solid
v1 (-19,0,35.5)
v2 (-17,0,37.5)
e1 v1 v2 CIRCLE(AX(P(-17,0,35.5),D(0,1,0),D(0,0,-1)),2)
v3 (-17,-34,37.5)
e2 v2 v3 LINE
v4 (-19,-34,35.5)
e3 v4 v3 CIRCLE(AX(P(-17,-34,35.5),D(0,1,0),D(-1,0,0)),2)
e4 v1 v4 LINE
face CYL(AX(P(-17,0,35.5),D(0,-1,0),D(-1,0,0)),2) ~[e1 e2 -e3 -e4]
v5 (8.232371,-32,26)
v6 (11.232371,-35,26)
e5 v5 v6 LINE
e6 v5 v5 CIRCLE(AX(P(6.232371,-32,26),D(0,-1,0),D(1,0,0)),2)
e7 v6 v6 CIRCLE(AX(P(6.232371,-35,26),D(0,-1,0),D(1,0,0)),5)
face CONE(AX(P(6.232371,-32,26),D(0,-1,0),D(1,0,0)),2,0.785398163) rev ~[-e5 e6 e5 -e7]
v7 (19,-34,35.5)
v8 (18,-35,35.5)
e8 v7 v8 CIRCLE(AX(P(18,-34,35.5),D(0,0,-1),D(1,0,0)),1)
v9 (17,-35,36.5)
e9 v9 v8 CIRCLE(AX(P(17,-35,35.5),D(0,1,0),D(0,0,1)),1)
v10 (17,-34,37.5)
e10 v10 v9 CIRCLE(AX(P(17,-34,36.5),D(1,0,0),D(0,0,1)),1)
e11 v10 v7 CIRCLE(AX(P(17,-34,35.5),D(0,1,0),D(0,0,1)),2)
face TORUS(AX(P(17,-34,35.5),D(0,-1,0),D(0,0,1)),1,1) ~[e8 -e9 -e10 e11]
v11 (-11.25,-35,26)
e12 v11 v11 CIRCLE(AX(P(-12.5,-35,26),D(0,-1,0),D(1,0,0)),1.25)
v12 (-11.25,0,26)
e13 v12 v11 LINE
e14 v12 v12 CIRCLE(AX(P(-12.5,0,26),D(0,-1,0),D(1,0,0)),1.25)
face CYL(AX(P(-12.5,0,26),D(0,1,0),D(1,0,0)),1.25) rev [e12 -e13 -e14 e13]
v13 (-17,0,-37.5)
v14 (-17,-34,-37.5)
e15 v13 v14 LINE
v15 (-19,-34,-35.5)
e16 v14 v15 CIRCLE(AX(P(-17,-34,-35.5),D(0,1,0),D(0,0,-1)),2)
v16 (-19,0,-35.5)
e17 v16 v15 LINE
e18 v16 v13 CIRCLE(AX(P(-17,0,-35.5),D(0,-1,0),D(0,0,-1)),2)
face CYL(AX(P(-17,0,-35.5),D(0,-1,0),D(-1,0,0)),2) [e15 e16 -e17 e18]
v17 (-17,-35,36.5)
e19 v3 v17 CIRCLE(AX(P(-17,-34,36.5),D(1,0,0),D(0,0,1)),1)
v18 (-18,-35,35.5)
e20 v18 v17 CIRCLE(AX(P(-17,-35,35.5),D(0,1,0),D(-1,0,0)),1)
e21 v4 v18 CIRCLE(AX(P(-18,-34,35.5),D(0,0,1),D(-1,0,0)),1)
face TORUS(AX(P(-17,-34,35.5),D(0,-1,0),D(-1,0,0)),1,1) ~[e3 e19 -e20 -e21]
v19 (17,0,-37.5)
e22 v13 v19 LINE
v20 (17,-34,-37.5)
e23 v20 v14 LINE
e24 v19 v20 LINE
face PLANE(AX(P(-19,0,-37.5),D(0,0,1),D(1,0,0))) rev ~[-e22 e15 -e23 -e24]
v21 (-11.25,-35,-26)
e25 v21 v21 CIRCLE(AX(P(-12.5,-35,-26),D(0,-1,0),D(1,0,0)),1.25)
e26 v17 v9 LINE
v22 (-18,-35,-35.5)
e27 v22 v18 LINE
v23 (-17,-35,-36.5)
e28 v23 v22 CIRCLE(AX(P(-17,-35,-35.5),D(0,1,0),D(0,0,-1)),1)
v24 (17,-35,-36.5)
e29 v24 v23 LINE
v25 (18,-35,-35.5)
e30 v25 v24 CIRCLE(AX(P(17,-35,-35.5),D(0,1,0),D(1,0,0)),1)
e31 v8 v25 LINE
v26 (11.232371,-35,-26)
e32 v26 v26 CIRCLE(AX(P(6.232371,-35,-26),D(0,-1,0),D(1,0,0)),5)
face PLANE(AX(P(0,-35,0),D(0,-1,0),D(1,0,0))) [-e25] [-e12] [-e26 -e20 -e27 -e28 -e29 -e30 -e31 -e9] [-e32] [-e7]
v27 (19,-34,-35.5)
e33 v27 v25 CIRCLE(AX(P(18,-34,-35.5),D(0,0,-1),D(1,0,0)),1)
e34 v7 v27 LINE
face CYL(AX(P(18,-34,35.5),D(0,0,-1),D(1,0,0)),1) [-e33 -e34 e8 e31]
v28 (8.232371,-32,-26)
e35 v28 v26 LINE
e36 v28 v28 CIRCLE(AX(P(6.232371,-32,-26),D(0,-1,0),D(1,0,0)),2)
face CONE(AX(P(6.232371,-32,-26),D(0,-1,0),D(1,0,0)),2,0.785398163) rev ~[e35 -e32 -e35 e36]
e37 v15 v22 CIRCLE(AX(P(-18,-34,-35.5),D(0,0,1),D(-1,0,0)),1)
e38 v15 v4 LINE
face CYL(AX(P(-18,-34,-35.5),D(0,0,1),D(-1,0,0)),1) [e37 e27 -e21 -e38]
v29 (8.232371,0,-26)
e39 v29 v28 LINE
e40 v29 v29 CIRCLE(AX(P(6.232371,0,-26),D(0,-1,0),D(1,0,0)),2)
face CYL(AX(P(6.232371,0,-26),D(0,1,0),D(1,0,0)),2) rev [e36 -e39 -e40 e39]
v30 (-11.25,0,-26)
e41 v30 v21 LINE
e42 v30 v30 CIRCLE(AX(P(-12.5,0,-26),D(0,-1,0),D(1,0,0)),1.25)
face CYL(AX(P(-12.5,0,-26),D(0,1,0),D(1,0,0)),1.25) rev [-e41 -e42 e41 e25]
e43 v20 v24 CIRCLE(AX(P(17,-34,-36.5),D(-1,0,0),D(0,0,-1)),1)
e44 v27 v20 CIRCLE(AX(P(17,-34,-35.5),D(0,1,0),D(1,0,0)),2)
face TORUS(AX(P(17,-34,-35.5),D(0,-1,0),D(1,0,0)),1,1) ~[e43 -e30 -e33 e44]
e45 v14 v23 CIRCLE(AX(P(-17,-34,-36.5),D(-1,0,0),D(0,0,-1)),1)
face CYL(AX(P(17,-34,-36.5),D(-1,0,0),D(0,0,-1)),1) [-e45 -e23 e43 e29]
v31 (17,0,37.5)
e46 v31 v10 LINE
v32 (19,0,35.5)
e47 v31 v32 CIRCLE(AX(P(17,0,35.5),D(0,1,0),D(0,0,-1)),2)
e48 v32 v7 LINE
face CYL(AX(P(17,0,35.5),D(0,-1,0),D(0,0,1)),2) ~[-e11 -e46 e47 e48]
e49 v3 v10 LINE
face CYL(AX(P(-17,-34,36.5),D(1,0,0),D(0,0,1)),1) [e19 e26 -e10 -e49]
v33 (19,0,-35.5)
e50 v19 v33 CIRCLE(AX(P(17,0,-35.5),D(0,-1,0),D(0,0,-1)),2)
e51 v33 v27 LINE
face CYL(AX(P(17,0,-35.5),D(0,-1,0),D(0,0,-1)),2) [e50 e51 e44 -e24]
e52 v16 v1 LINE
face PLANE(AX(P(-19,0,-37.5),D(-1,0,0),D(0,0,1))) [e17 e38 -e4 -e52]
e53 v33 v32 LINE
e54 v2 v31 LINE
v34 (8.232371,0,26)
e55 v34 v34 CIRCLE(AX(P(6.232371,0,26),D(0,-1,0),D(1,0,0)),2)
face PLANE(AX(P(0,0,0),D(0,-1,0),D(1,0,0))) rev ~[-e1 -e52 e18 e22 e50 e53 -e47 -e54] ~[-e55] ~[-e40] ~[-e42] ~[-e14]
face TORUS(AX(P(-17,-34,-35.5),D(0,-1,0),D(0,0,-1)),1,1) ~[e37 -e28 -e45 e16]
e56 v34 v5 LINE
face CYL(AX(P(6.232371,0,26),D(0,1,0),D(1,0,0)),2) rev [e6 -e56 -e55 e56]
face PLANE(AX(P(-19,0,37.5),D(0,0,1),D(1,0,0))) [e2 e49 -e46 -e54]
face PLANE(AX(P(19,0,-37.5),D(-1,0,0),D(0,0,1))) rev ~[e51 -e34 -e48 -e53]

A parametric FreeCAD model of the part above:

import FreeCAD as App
import Part
import Sketcher
from FreeCAD import Vector
Q = App.Units.Quantity


def edges_at(feature, points):
    """Names of the edges that pass closest to the given points."""
    edges = feature.Shape.Edges
    near = lambda p: min(range(len(edges)), key=lambda i: edges[i].distToShape(Part.Vertex(*p))[0])
    return sorted({f"Edge{near(p) + 1}" for p in points})


def add_polygon(sketch, points):
    """Adds a closed chain of lines whose ends are joined by coincident constraints."""
    first, n = sketch.GeometryCount, len(points)
    for a, b in zip(points, points[1:] + points[:1]):
        sketch.addGeometry(Part.LineSegment(App.Vector(*a, 0), App.Vector(*b, 0)), False)
    for i in range(n):
        sketch.addConstraint(Sketcher.Constraint("Coincident", first + i, 2, first + (i + 1) % n, 1))

doc = App.newDocument("Part")
body = doc.addObject("PartDesign::Body", "Body")

# Sketch on XZ plane
sketch1 = body.newObject("Sketcher::SketchObject", "Sketch")
sketch1.AttachmentSupport = (doc.getObject("XZ_Plane"), [""])
sketch1.MapMode = "FlatFace"
add_polygon(sketch1, [(-19, 37.5), (-19, -37.5), (19, -37.5), (19, 37.5)])  # lines 0-3
sketch1.addGeometry(Part.Circle(Vector(-12.5, -26, 0), Vector(0, 0, 1), 1.25), False)  # 4
sketch1.addGeometry(Part.Circle(Vector(6.232371, -26, 0), Vector(0, 0, 1), 2), False)  # 5
sketch1.addGeometry(Part.Circle(Vector(-12.5, 26, 0), Vector(0, 0, 1), 1.25), False)  # 6
sketch1.addGeometry(Part.Circle(Vector(6.232371, 26, 0), Vector(0, 0, 1), 2), False)  # 7
sketch1.addConstraint(Sketcher.Constraint("Vertical", 0))
sketch1.addConstraint(Sketcher.Constraint("Horizontal", 1))
sketch1.addConstraint(Sketcher.Constraint("Vertical", 2))
sketch1.addConstraint(Sketcher.Constraint("Horizontal", 3))
sketch1.addConstraint(Sketcher.Constraint("Equal", 4, 6))
sketch1.addConstraint(Sketcher.Constraint("Equal", 5, 7))
sketch1.addConstraint(Sketcher.Constraint("Symmetric", 0, 2, 2, 2, -1, 1))
sketch1.addConstraint(Sketcher.Constraint("Symmetric", 4, 3, 6, 3, -1))
sketch1.addConstraint(Sketcher.Constraint("Symmetric", 5, 3, 7, 3, -1))
sketch1.addConstraint(Sketcher.Constraint("Horizontal", 4, 3, 5, 3))
sketch1.addConstraint(Sketcher.Constraint("Diameter", 5, Q("4 mm")))
sketch1.addConstraint(Sketcher.Constraint("Diameter", 4, Q("2.5 mm")))
sketch1.addConstraint(Sketcher.Constraint("DistanceX", 1, 1, 1, 2, Q("38 mm")))
sketch1.addConstraint(Sketcher.Constraint("DistanceY", 0, 2, 0, 1, Q("75 mm")))
sketch1.addConstraint(Sketcher.Constraint("DistanceY", 4, 3, -1, 1, Q("26 mm")))
sketch1.addConstraint(Sketcher.Constraint("DistanceX", 4, 3, -1, 1, Q("12.5 mm")))
sketch1.addConstraint(Sketcher.Constraint("DistanceX", -1, 1, 5, 3, Q("6.232371 mm")))
pad1 = body.newObject("PartDesign::Pad", "Pad")
pad1.Profile = sketch1
pad1.Length = 35
doc.recompute()

chamfer = body.newObject("PartDesign::Chamfer", "Chamfer")
chamfer.Base = (pad1, edges_at(pad1, [(4.232, -35, 26), (4.232, -35, -26)]))
chamfer.ChamferType = "Two distances"
chamfer.Size = 3
chamfer.Size2 = 3
doc.recompute()

fillet = body.newObject("PartDesign::Fillet", "Fillet")
fillet.Base = (chamfer, edges_at(chamfer, [
    (-19, -17.5, 37.5),
    (-19, -17.5, -37.5),
    (19, -17.5, -37.5),
    (19, -17.5, 37.5),
]))
fillet.Radius = 2
doc.recompute()

fillet2 = body.newObject("PartDesign::Fillet", "Fillet001")
fillet2.Base = (fillet, edges_at(fillet, [(-19, -35, 0)]))
fillet2.Radius = 1

doc.recompute()
